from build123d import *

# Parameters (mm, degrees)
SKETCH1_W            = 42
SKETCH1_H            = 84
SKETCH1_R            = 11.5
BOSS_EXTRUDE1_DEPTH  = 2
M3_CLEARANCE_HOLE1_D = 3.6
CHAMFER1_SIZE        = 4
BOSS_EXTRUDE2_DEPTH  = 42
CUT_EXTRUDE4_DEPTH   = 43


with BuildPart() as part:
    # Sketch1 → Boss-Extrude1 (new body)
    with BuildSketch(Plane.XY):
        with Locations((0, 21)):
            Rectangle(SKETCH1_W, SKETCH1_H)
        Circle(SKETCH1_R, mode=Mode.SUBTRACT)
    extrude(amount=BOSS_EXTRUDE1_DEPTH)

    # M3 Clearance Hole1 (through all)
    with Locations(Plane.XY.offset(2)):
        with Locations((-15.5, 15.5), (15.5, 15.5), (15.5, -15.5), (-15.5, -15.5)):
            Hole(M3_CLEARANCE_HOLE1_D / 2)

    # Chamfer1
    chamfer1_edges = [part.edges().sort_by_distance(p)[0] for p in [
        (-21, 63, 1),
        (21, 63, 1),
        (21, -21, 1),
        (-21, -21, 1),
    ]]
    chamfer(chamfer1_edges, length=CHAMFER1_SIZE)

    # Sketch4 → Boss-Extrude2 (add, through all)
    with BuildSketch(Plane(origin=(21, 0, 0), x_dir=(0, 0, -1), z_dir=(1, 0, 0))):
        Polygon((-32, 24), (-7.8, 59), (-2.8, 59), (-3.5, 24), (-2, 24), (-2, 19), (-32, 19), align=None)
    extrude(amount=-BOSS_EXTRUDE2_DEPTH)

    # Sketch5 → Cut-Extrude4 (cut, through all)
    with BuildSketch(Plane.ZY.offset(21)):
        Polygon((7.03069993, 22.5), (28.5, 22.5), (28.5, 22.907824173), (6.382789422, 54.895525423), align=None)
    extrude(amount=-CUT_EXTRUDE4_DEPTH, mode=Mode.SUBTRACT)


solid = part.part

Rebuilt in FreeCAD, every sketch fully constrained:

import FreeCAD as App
import Part
import Sketcher
Q = App.Units.Quantity


def edges_at(feature, points):
    """Names of the edges that pass closest to the given points."""
    edges = feature.Shape.Edges
    near = lambda p: min(range(len(edges)), key=lambda i: edges[i].distToShape(Part.Vertex(*p))[0])
    return sorted({f"Edge{near(p) + 1}" for p in points})


def add_polygon(sketch, points):
    """Adds a closed chain of lines whose ends are joined by coincident constraints."""
    first, n = sketch.GeometryCount, len(points)
    for a, b in zip(points, points[1:] + points[:1]):
        sketch.addGeometry(Part.LineSegment(App.Vector(*a, 0), App.Vector(*b, 0)), False)
    for i in range(n):
        sketch.addConstraint(Sketcher.Constraint("Coincident", first + i, 2, first + (i + 1) % n, 1))

doc = App.newDocument("Part")
params = doc.addObject("Spreadsheet::Sheet", "Params")
for row, (alias, value) in enumerate([
    ("sketch1_diameter", "23 mm"),
    ("sketch1_width", "42 mm"),
    ("sketch1_height", "84 mm"),
    ("pad1_length", "2 mm"),
    ("sketch2_diameter", "3.6 mm"),
    ("hole_diameter", "3.6 mm"),
    ("chamfer_size", "4 mm"),
    ("sketch3_width", "5 mm"),
    ("sketch3_height", "30 mm"),
    ("sketch3_height2", "1.5 mm"),
    ("pad2_length", "42 mm"),
], start=1):
    params.set(f"A{row}", alias)
    params.set(f"B{row}", "=" + value)
    params.setAlias(f"B{row}", alias)

body = doc.addObject("PartDesign::Body", "Body")

sketch1 = doc.addObject("Sketcher::SketchObject", "Sketch")
body.addObject(sketch1)
sketch1.AttachmentSupport = (doc.XY_Plane, [""])
sketch1.MapMode = "FlatFace"
add_polygon(sketch1, [(-21, 63), (-21, -21), (21, -21), (21, 63)])
sketch1.addGeometry(Part.Circle(App.Vector(0, 0, 0), App.Vector(0, 0, 1), 11.5), False)
sketch1.addConstraint(Sketcher.Constraint("Vertical", 0))
sketch1.addConstraint(Sketcher.Constraint("Horizontal", 1))
sketch1.addConstraint(Sketcher.Constraint("Vertical", 2))
sketch1.addConstraint(Sketcher.Constraint("Horizontal", 3))
sketch1.addConstraint(Sketcher.Constraint("Coincident", 4, 3, -1, 1))
sketch1.addConstraint(Sketcher.Constraint("Diameter", 4, Q("23 mm")))
sketch1.addConstraint(Sketcher.Constraint("DistanceX", 1, 1, 1, 2, Q("42 mm")))
sketch1.addConstraint(Sketcher.Constraint("DistanceY", 0, 2, 0, 1, Q("84 mm")))
sketch1.addConstraint(Sketcher.Constraint("DistanceX", 0, 2, -1, 1, Q("21 mm")))
sketch1.addConstraint(Sketcher.Constraint("DistanceY", 0, 2, -1, 1, Q("21 mm")))
sketch1.setExpression("Constraints[9]", "Params.sketch1_diameter")
sketch1.setExpression("Constraints[10]", "Params.sketch1_width")
sketch1.setExpression("Constraints[11]", "Params.sketch1_height")
pad1 = doc.addObject("PartDesign::Pad", "Pad")
body.addObject(pad1)
pad1.Profile = sketch1
pad1.setExpression("Length", "Params.pad1_length")

sketch2 = doc.addObject("Sketcher::SketchObject", "Sketch001")
body.addObject(sketch2)
sketch2.AttachmentSupport = (doc.XY_Plane, [""])
sketch2.MapMode = "FlatFace"
sketch2.AttachmentOffset = App.Placement(App.Vector(0, 0, 2), App.Rotation())
sketch2.addGeometry(Part.Circle(App.Vector(-15.5, 15.5, 0), App.Vector(0, 0, 1), 1.8), False)
sketch2.addGeometry(Part.Circle(App.Vector(15.5, 15.5, 0), App.Vector(0, 0, 1), 1.8), False)
sketch2.addGeometry(Part.Circle(App.Vector(15.5, -15.5, 0), App.Vector(0, 0, 1), 1.8), False)
sketch2.addGeometry(Part.Circle(App.Vector(-15.5, -15.5, 0), App.Vector(0, 0, 1), 1.8), False)
sketch2.addConstraint(Sketcher.Constraint("Equal", 0, 1))
sketch2.addConstraint(Sketcher.Constraint("Equal", 1, 2))
sketch2.addConstraint(Sketcher.Constraint("Equal", 2, 3))
sketch2.addConstraint(Sketcher.Constraint("Symmetric", 0, 3, 2, 3, -1, 1))
sketch2.addConstraint(Sketcher.Constraint("Symmetric", 1, 3, 3, 3, -1, 1))
sketch2.addConstraint(Sketcher.Constraint("Symmetric", 0, 3, 1, 3, -2))
sketch2.addConstraint(Sketcher.Constraint("Diameter", 0, Q("3.6 mm")))
sketch2.addConstraint(Sketcher.Constraint("DistanceX", 0, 3, 1, 3, Q("31 mm")))
sketch2.addConstraint(Sketcher.Constraint("DistanceY", 2, 3, 1, 3, Q("31 mm")))
sketch2.setExpression("Constraints[6]", "Params.sketch2_diameter")
doc.recompute()
hole = doc.addObject("PartDesign::Hole", "Hole")
body.addObject(hole)
hole.Profile = sketch2
hole.ThreadType = "None"
hole.setExpression("Diameter", "Params.hole_diameter")
hole.DepthType = "ThroughAll"
doc.recompute()

chamfer = doc.addObject("PartDesign::Chamfer", "Chamfer")
body.addObject(chamfer)
chamfer.Base = (hole, edges_at(hole, [
    (-21, 63, 1),
    (21, 63, 1),
    (21, -21, 1),
    (-21, -21, 1),
]))
chamfer.setExpression("Size", "Params.chamfer_size")

sketch3 = doc.addObject("Sketcher::SketchObject", "Sketch002")
body.addObject(sketch3)
sketch3.AttachmentSupport = (doc.YZ_Plane, [""])
sketch3.MapMode = "FlatFace"
sketch3.AttachmentOffset = App.Placement(App.Vector(0, 0, 21), App.Rotation())
add_polygon(sketch3, [(59, 7.8), (24, 32), (19, 32), (19, 2), (24, 2), (24, 3.5), (59, 2.8)])
sketch3.addConstraint(Sketcher.Constraint("Horizontal", 1))
sketch3.addConstraint(Sketcher.Constraint("Vertical", 2))
sketch3.addConstraint(Sketcher.Constraint("Horizontal", 3))
sketch3.addConstraint(Sketcher.Constraint("Vertical", 4))
sketch3.addConstraint(Sketcher.Constraint("Vertical", 6))
sketch3.addConstraint(Sketcher.Constraint("Vertical", 0, 2, 3, 2))
sketch3.addConstraint(Sketcher.Constraint("Equal", 3, 6))
sketch3.addConstraint(Sketcher.Constraint("DistanceX", 1, 2, 1, 1, Q("5 mm")))
sketch3.addConstraint(Sketcher.Constraint("DistanceY", 2, 2, 2, 1, Q("30 mm")))
sketch3.addConstraint(Sketcher.Constraint("DistanceY", 4, 1, 4, 2, Q("1.5 mm")))
sketch3.addConstraint(Sketcher.Constraint("DistanceX", -1, 1, 0, 2, Q("24 mm")))
sketch3.addConstraint(Sketcher.Constraint("DistanceY", -1, 1, 0, 2, Q("32 mm")))
sketch3.addConstraint(Sketcher.Constraint("DistanceX", -1, 1, 5, 2, Q("59 mm")))
sketch3.addConstraint(Sketcher.Constraint("DistanceY", -1, 1, 5, 2, Q("2.8 mm")))
sketch3.setExpression("Constraints[14]", "Params.sketch3_width")
sketch3.setExpression("Constraints[15]", "Params.sketch3_height")
sketch3.setExpression("Constraints[16]", "Params.sketch3_height2")
pad2 = doc.addObject("PartDesign::Pad", "Pad001")
body.addObject(pad2)
pad2.Profile = sketch3
pad2.setExpression("Length", "Params.pad2_length")
pad2.Reversed = True

sketch4 = doc.addObject("Sketcher::SketchObject", "Sketch003")
body.addObject(sketch4)
sketch4.AttachmentSupport = (doc.YZ_Plane, [""])
sketch4.MapMode = "FlatFace"
sketch4.AttachmentOffset = App.Placement(App.Vector(0, 0, -21), App.Rotation())
add_polygon(sketch4, [(22.5, 7.0307), (22.5, 28.5), (22.907824, 28.5), (54.895525, 6.382789)])
sketch4.addConstraint(Sketcher.Constraint("Vertical", 0))
sketch4.addConstraint(Sketcher.Constraint("Horizontal", 1))
sketch4.addConstraint(Sketcher.Constraint("DistanceX", -1, 1, 0, 2, Q("22.5 mm")))
sketch4.addConstraint(Sketcher.Constraint("DistanceY", -1, 1, 0, 2, Q("28.5 mm")))
sketch4.addConstraint(Sketcher.Constraint("DistanceY", 0, 1, 0, 2, Q("21.4693 mm")))
sketch4.addConstraint(Sketcher.Constraint("DistanceX", 1, 2, 2, 2, Q("31.987701 mm")))
sketch4.addConstraint(Sketcher.Constraint("DistanceX", 1, 1, 1, 2, Q("0.407824 mm")))
sketch4.addConstraint(Sketcher.Constraint("DistanceY", -1, 1, 2, 2, Q("6.382789 mm")))
pocket1 = doc.addObject("PartDesign::Pocket", "Pocket")
body.addObject(pocket1)
pocket1.Profile = sketch4
pocket1.Type = "ThroughAll"
pocket1.Reversed = True

doc.recompute()
